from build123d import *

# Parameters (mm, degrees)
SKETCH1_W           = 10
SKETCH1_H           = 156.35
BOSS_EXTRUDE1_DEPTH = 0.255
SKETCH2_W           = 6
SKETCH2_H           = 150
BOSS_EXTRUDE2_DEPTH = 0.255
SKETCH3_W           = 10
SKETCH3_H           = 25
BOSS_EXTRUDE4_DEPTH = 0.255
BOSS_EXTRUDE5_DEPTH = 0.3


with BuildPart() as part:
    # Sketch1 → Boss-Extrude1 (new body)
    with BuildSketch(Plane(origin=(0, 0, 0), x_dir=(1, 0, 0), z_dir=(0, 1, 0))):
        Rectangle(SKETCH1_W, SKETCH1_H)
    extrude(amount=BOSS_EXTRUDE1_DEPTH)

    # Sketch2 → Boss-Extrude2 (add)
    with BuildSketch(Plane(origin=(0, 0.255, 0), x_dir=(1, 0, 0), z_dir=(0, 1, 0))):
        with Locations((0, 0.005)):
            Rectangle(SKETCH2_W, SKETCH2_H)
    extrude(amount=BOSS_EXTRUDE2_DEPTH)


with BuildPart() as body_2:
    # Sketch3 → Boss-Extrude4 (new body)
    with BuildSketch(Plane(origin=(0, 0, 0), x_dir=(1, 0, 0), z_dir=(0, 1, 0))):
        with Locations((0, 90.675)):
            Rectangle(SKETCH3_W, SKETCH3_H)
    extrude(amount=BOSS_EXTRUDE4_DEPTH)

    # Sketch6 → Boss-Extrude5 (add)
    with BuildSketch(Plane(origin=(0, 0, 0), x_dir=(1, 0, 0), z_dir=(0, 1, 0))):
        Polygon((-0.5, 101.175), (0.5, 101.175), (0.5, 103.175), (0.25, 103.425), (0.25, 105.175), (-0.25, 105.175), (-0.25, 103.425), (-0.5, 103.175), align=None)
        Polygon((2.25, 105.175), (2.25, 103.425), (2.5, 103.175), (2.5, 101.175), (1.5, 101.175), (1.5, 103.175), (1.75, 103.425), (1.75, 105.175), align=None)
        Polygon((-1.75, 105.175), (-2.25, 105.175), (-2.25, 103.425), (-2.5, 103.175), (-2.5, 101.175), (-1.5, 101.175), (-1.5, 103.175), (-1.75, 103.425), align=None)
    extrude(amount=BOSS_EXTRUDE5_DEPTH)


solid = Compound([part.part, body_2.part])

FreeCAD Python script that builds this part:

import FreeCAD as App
import Part
import Sketcher
from FreeCAD import Vector


def add_polygon(sketch, points):
    """Adds a closed chain of lines whose ends are joined by coincident constraints."""
    first, n = sketch.GeometryCount, len(points)
    for a, b in zip(points, points[1:] + points[:1]):
        sketch.addGeometry(Part.LineSegment(App.Vector(*a, 0), App.Vector(*b, 0)), False)
    for i in range(n):
        sketch.addConstraint(Sketcher.Constraint("Coincident", first + i, 2, first + (i + 1) % n, 1))

doc = App.newDocument("Part")
body = doc.addObject("PartDesign::Body", "Body")

sketch1 = body.newObject("Sketcher::SketchObject", "Sketch")
sketch1.AttachmentSupport = (doc.getObject("XZ_Plane"), [""])
sketch1.MapMode = "FlatFace"
add_polygon(sketch1, [(-5, -78.175), (-5, 78.175), (5, 78.175), (5, -78.175)])
sketch1.addConstraint(Sketcher.Constraint("Vertical", 0))
sketch1.addConstraint(Sketcher.Constraint("Horizontal", 1))
sketch1.addConstraint(Sketcher.Constraint("Vertical", 2))
sketch1.addConstraint(Sketcher.Constraint("Horizontal", 3))
sketch1.addConstraint(Sketcher.Constraint("Symmetric", 0, 2, 2, 2, -1, 1))
sketch1.addConstraint(Sketcher.Constraint("DistanceX", 1, 1, 1, 2, 10.0))
sketch1.addConstraint(Sketcher.Constraint("DistanceY", 0, 1, 0, 2, 156.35))
pad1 = body.newObject("PartDesign::Pad", "Pad")
pad1.Profile = sketch1
pad1.Length = 0.255
pad1.Reversed = True

sketch2 = body.newObject("Sketcher::SketchObject", "Sketch001")
sketch2.AttachmentSupport = (doc.getObject("XZ_Plane"), [""])
sketch2.MapMode = "FlatFace"
sketch2.AttachmentOffset = App.Placement(Vector(0, 0, -0.255), App.Rotation())
add_polygon(sketch2, [(-3, -75.005), (-3, 74.995), (3, 74.995), (3, -75.005)])
sketch2.addConstraint(Sketcher.Constraint("Vertical", 0))
sketch2.addConstraint(Sketcher.Constraint("Horizontal", 1))
sketch2.addConstraint(Sketcher.Constraint("Vertical", 2))
sketch2.addConstraint(Sketcher.Constraint("Horizontal", 3))
sketch2.addConstraint(Sketcher.Constraint("DistanceX", 1, 1, 1, 2, 6.0))
sketch2.addConstraint(Sketcher.Constraint("DistanceY", 0, 1, 0, 2, 150.0))
sketch2.addConstraint(Sketcher.Constraint("DistanceX", 0, 2, -1, 1, 3.0))
sketch2.addConstraint(Sketcher.Constraint("DistanceY", -1, 1, 0, 2, 74.995))
pad2 = body.newObject("PartDesign::Pad", "Pad001")
pad2.Profile = sketch2
pad2.Length = 0.255
pad2.Reversed = True
body2 = doc.addObject("PartDesign::Body", "Body001")

sketch3 = body2.newObject("Sketcher::SketchObject", "Sketch002")
sketch3.AttachmentSupport = (doc.getObject("XZ_Plane001"), [""])
sketch3.MapMode = "FlatFace"
add_polygon(sketch3, [(-5, -103.175), (-5, -78.175), (5, -78.175), (5, -103.175)])
sketch3.addConstraint(Sketcher.Constraint("Vertical", 0))
sketch3.addConstraint(Sketcher.Constraint("Horizontal", 1))
sketch3.addConstraint(Sketcher.Constraint("Vertical", 2))
sketch3.addConstraint(Sketcher.Constraint("Horizontal", 3))
sketch3.addConstraint(Sketcher.Constraint("DistanceX", 1, 1, 1, 2, 10.0))
sketch3.addConstraint(Sketcher.Constraint("DistanceY", 0, 1, 0, 2, 25.0))
sketch3.addConstraint(Sketcher.Constraint("DistanceX", 0, 2, -1, 1, 5.0))
sketch3.addConstraint(Sketcher.Constraint("DistanceY", 0, 2, -1, 1, 78.175))
pad3 = body2.newObject("PartDesign::Pad", "Pad002")
pad3.Profile = sketch3
pad3.Length = 0.255
pad3.Reversed = True

sketch4 = body2.newObject("Sketcher::SketchObject", "Sketch003")
sketch4.AttachmentSupport = (doc.getObject("XZ_Plane001"), [""])
sketch4.MapMode = "FlatFace"
add_polygon(sketch4, [(-0.5, -101.175), (0.5, -101.175), (0.5, -103.175), (0.25, -103.425), (0.25, -105.175), (-0.25, -105.175), (-0.25, -103.425), (-0.5, -103.175)])
add_polygon(sketch4, [(2.25, -103.425), (2.25, -105.175), (1.75, -105.175), (1.75, -103.425), (1.5, -103.175), (1.5, -101.175), (2.5, -101.175), (2.5, -103.175)])
add_polygon(sketch4, [(-1.75, -105.175), (-2.25, -105.175), (-2.25, -103.425), (-2.5, -103.175), (-2.5, -101.175), (-1.5, -101.175), (-1.5, -103.175), (-1.75, -103.425)])
sketch4.addConstraint(Sketcher.Constraint("Horizontal", 0))
sketch4.addConstraint(Sketcher.Constraint("Vertical", 1))
sketch4.addConstraint(Sketcher.Constraint("Vertical", 3))
sketch4.addConstraint(Sketcher.Constraint("Horizontal", 4))
sketch4.addConstraint(Sketcher.Constraint("Vertical", 5))
sketch4.addConstraint(Sketcher.Constraint("Vertical", 7))
sketch4.addConstraint(Sketcher.Constraint("Vertical", 8))
sketch4.addConstraint(Sketcher.Constraint("Horizontal", 9))
sketch4.addConstraint(Sketcher.Constraint("Vertical", 10))
sketch4.addConstraint(Sketcher.Constraint("Vertical", 12))
sketch4.addConstraint(Sketcher.Constraint("Horizontal", 13))
sketch4.addConstraint(Sketcher.Constraint("Vertical", 14))
sketch4.addConstraint(Sketcher.Constraint("Horizontal", 16))
sketch4.addConstraint(Sketcher.Constraint("Vertical", 17))
sketch4.addConstraint(Sketcher.Constraint("Vertical", 19))
sketch4.addConstraint(Sketcher.Constraint("Horizontal", 20))
sketch4.addConstraint(Sketcher.Constraint("Vertical", 21))
sketch4.addConstraint(Sketcher.Constraint("Vertical", 23))
sketch4.addConstraint(Sketcher.Constraint("Symmetric", 2, 2, 5, 2, -2))
sketch4.addConstraint(Sketcher.Constraint("Symmetric", 1, 2, 6, 2, -2))
sketch4.addConstraint(Sketcher.Constraint("Symmetric", 8, 2, 16, 2, -2))
sketch4.addConstraint(Sketcher.Constraint("Symmetric", 14, 2, 18, 2, -2))
sketch4.addConstraint(Sketcher.Constraint("Symmetric", 12, 2, 20, 2, -2))
sketch4.addConstraint(Sketcher.Constraint("Symmetric", 10, 2, 22, 2, -2))
sketch4.addConstraint(Sketcher.Constraint("Perpendicular", 2, 6))
sketch4.addConstraint(Sketcher.Constraint("Parallel", 6, 11))
sketch4.addConstraint(Sketcher.Constraint("Perpendicular", 11, 15))
sketch4.addConstraint(Sketcher.Constraint("Perpendicular", 15, 18))
sketch4.addConstraint(Sketcher.Constraint("Perpendicular", 18, 22))
sketch4.addConstraint(Sketcher.Constraint("Horizontal", 4, 2, 8, 2))
sketch4.addConstraint(Sketcher.Constraint("Horizontal", 5, 2, 10, 2))
sketch4.addConstraint(Sketcher.Constraint("Horizontal", 6, 2, 11, 2))
sketch4.addConstraint(Sketcher.Constraint("Horizontal", 7, 2, 12, 2))
sketch4.addConstraint(Sketcher.Constraint("Horizontal", 11, 2, 14, 2))
sketch4.addConstraint(Sketcher.Constraint("Horizontal", 10, 2, 15, 2))
sketch4.addConstraint(Sketcher.Constraint("Equal", 4, 9))
sketch4.addConstraint(Sketcher.Constraint("DistanceX", 0, 1, 0, 2, 1.0))
sketch4.addConstraint(Sketcher.Constraint("DistanceY", 1, 2, 1, 1, 2.0))
sketch4.addConstraint(Sketcher.Constraint("DistanceX", 4, 2, 4, 1, 0.5))
sketch4.addConstraint(Sketcher.Constraint("DistanceY", 3, 2, 1, 2, 2.0))
sketch4.addConstraint(Sketcher.Constraint("DistanceX", 3, 2, 8, 2, 2.0))
sketch4.addConstraint(Sketcher.Constraint("DistanceY", 0, 2, -1, 1, 101.175))
pad4 = body2.newObject("PartDesign::Pad", "Pad003")
pad4.Profile = sketch4
pad4.Length = 0.3
pad4.Reversed = True

doc.recompute()
